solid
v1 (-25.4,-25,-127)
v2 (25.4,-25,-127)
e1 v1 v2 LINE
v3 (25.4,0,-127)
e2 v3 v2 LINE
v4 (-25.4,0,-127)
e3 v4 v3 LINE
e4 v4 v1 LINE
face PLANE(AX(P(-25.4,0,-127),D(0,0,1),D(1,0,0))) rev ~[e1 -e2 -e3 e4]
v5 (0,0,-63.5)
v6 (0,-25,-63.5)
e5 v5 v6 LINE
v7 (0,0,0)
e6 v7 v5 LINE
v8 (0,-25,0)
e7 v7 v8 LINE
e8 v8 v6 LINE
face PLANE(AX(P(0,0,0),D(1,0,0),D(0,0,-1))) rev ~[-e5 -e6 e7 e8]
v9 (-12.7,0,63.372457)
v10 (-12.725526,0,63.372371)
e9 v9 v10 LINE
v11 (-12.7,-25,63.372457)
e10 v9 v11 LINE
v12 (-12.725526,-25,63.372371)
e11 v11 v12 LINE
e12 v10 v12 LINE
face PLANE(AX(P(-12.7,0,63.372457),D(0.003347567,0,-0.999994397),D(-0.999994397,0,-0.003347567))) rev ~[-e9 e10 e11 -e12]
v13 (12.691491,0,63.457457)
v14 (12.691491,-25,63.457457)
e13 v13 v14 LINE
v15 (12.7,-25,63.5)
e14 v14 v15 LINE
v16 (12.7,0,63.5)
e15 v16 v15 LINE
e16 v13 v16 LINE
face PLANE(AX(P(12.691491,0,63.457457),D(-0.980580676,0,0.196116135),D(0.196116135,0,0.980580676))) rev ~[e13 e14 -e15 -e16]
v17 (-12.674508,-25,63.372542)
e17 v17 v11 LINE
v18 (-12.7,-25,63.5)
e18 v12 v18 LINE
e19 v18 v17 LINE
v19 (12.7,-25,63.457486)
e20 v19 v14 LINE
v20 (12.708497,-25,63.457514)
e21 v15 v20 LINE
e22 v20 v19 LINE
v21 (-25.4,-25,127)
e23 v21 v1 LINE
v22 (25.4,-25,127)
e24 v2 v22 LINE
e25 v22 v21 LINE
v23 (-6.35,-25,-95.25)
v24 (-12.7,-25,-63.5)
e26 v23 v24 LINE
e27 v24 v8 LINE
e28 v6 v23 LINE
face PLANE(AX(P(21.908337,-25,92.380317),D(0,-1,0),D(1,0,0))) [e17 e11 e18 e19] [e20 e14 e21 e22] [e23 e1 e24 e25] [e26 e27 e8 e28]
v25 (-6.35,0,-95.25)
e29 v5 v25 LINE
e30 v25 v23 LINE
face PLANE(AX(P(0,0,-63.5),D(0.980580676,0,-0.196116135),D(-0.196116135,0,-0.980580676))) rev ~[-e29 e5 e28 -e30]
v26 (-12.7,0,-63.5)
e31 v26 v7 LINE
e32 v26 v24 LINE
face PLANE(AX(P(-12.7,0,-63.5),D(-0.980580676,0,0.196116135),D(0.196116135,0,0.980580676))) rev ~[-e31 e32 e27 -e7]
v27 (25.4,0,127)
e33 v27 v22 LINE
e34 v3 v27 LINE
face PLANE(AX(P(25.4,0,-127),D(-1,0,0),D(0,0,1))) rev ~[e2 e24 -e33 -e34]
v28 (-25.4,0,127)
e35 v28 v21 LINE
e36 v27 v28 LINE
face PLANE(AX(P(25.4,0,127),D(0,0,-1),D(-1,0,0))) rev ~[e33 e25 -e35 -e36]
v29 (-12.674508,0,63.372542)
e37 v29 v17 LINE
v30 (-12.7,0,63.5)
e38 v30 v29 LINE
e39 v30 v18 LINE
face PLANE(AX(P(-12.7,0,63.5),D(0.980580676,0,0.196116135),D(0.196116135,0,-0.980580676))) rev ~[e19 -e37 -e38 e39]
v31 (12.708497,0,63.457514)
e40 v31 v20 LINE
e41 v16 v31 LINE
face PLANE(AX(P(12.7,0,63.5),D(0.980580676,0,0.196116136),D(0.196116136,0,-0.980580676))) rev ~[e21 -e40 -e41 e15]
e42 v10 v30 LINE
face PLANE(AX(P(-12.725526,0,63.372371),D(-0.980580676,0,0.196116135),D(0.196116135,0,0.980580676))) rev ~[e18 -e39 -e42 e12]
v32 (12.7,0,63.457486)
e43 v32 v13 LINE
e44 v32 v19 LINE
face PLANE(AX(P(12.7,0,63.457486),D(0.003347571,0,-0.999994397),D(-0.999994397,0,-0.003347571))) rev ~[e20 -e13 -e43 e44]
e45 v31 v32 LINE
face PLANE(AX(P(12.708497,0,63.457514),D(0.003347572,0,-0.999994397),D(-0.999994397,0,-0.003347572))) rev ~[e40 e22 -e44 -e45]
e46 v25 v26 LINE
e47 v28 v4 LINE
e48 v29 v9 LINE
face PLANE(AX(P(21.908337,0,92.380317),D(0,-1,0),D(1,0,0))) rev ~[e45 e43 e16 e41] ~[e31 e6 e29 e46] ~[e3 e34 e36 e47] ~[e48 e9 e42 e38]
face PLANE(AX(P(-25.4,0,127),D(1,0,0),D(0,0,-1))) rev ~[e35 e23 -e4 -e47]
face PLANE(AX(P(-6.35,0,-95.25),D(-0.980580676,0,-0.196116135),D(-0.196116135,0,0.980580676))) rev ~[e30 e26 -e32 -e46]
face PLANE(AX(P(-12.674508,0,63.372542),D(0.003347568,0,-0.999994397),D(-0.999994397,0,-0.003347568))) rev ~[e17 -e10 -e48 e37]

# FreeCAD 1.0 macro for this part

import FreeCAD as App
import Part
import Sketcher

V = App.Vector
Q = App.Units.Quantity

doc = App.newDocument("Part")
body = doc.addObject("PartDesign::Body", "Body")

# Sketch on XZ plane
sketch1 = body.newObject("Sketcher::SketchObject", "Sketch")
sketch1.AttachmentSupport = (doc.getObject("XZ_Plane"), [""])
sketch1.MapMode = "FlatFace"
sketch1.addGeometry(Part.LineSegment(V(-25.4, 127, 0), V(-25.4, -127, 0)), False)
sketch1.addGeometry(Part.LineSegment(V(-25.4, -127, 0), V(25.4, -127, 0)), False)
sketch1.addGeometry(Part.LineSegment(V(25.4, -127, 0), V(25.4, 127, 0)), False)
sketch1.addGeometry(Part.LineSegment(V(25.4, 127, 0), V(-25.4, 127, 0)), False)
sketch1.addGeometry(Part.LineSegment(V(-12.7, -63.5, 0), V(0, 0, 0)), False)
sketch1.addGeometry(Part.LineSegment(V(0, 0, 0), V(0, -63.5, 0)), False)
sketch1.addGeometry(Part.LineSegment(V(0, -63.5, 0), V(-6.35, -95.25, 0)), False)
sketch1.addGeometry(Part.LineSegment(V(-6.35, -95.25, 0), V(-12.7, -63.5, 0)), False)
sketch1.addGeometry(Part.LineSegment(V(-12.726, 63.372, 0), V(-12.7, 63.5, 0)), False)
sketch1.addGeometry(Part.LineSegment(V(-12.7, 63.5, 0), V(-12.675, 63.373, 0)), False)
sketch1.addGeometry(Part.LineSegment(V(-12.675, 63.373, 0), V(-12.7, 63.372, 0)), False)
sketch1.addGeometry(Part.LineSegment(V(-12.7, 63.372, 0), V(-12.726, 63.372, 0)), False)
sketch1.addGeometry(Part.LineSegment(V(12.7, 63.457, 0), V(12.691, 63.457, 0)), False)
sketch1.addGeometry(Part.LineSegment(V(12.691, 63.457, 0), V(12.7, 63.5, 0)), False)
sketch1.addGeometry(Part.LineSegment(V(12.7, 63.5, 0), V(12.708, 63.458, 0)), False)
sketch1.addGeometry(Part.LineSegment(V(12.708, 63.458, 0), V(12.7, 63.457, 0)), False)
sketch1.addConstraint(Sketcher.Constraint("Coincident", 0, 2, 1, 1))
sketch1.addConstraint(Sketcher.Constraint("Coincident", 1, 2, 2, 1))
sketch1.addConstraint(Sketcher.Constraint("Coincident", 2, 2, 3, 1))
sketch1.addConstraint(Sketcher.Constraint("Coincident", 3, 2, 0, 1))
sketch1.addConstraint(Sketcher.Constraint("Coincident", 4, 2, 5, 1))
sketch1.addConstraint(Sketcher.Constraint("Coincident", 5, 2, 6, 1))
sketch1.addConstraint(Sketcher.Constraint("Coincident", 6, 2, 7, 1))
sketch1.addConstraint(Sketcher.Constraint("Coincident", 7, 2, 4, 1))
sketch1.addConstraint(Sketcher.Constraint("Coincident", 8, 2, 9, 1))
sketch1.addConstraint(Sketcher.Constraint("Coincident", 9, 2, 10, 1))
sketch1.addConstraint(Sketcher.Constraint("Coincident", 10, 2, 11, 1))
sketch1.addConstraint(Sketcher.Constraint("Coincident", 11, 2, 8, 1))
sketch1.addConstraint(Sketcher.Constraint("Coincident", 12, 2, 13, 1))
sketch1.addConstraint(Sketcher.Constraint("Coincident", 13, 2, 14, 1))
sketch1.addConstraint(Sketcher.Constraint("Coincident", 14, 2, 15, 1))
sketch1.addConstraint(Sketcher.Constraint("Coincident", 15, 2, 12, 1))
sketch1.addConstraint(Sketcher.Constraint("Vertical", 0))
sketch1.addConstraint(Sketcher.Constraint("Horizontal", 1))
sketch1.addConstraint(Sketcher.Constraint("Vertical", 2))
sketch1.addConstraint(Sketcher.Constraint("Horizontal", 3))
sketch1.addConstraint(Sketcher.Constraint("Vertical", 5))
sketch1.addConstraint(Sketcher.Constraint("Coincident", 4, 2, -1, 1))
sketch1.addConstraint(Sketcher.Constraint("Symmetric", 0, 2, 2, 2, -1, 1))
sketch1.addConstraint(Sketcher.Constraint("Symmetric", 7, 2, 13, 2, -1, 1))
sketch1.addConstraint(Sketcher.Constraint("Symmetric", 8, 2, 13, 2, -2))
sketch1.addConstraint(Sketcher.Constraint("Parallel", 4, 6))
sketch1.addConstraint(Sketcher.Constraint("Parallel", 6, 8))
sketch1.addConstraint(Sketcher.Constraint("Parallel", 7, 9))
sketch1.addConstraint(Sketcher.Constraint("Parallel", 10, 11))
sketch1.addConstraint(Sketcher.Constraint("Parallel", 11, 12))
sketch1.addConstraint(Sketcher.Constraint("Parallel", 8, 13))
sketch1.addConstraint(Sketcher.Constraint("Parallel", 9, 14))
sketch1.addConstraint(Sketcher.Constraint("Parallel", 12, 15))
sketch1.addConstraint(Sketcher.Constraint("Horizontal", 5, 2, 7, 2))
sketch1.addConstraint(Sketcher.Constraint("Vertical", 8, 2, 10, 2))
sketch1.addConstraint(Sketcher.Constraint("Vertical", 13, 2, 15, 2))
sketch1.addConstraint(Sketcher.Constraint("Equal", 6, 7))
sketch1.addConstraint(Sketcher.Constraint("DistanceX", 1, 1, 1, 2, Q("2 in")))
sketch1.addConstraint(Sketcher.Constraint("DistanceY", 0, 2, 0, 1, Q("10 in")))
sketch1.addConstraint(Sketcher.Constraint("DistanceY", 5, 2, 5, 1, Q("2.5 in")))
sketch1.addConstraint(Sketcher.Constraint("DistanceX", 8, 2, 13, 2, Q("1 in")))
sketch1.addConstraint(Sketcher.Constraint("DistanceX", 9, 2, 12, 2, Q("25.366 mm")))
sketch1.addConstraint(Sketcher.Constraint("DistanceY", 10, 2, 12, 2, Q("0.085 mm")))
sketch1.addConstraint(Sketcher.Constraint("Distance", 9, Q("0.129982 mm")))
pad1 = body.newObject("PartDesign::Pad", "Pad")
pad1.Profile = sketch1
pad1.Length = 25

# Sketch on XZ plane
sketch2 = body.newObject("Sketcher::SketchObject", "Sketch001")
sketch2.AttachmentSupport = (doc.getObject("XZ_Plane"), [""])
sketch2.MapMode = "FlatFace"
sketch2.addGeometry(Part.LineSegment(V(25.4, 0, 0), V(12.708, 63.458, 0)), False)
sketch2.addGeometry(Part.LineSegment(V(12.708, 63.458, 0), V(12.7, 63.457, 0)), False)
sketch2.addGeometry(Part.LineSegment(V(12.7, 63.457, 0), V(12.691, 63.457, 0)), False)
sketch2.addGeometry(Part.LineSegment(V(12.691, 63.457, 0), V(0, 0, 0)), False)
sketch2.addGeometry(Part.LineSegment(V(0, 0, 0), V(12.7, -63.5, 0)), False)
sketch2.addGeometry(Part.LineSegment(V(12.7, -63.5, 0), V(25.4, 0, 0)), False)
sketch2.addGeometry(Part.LineSegment(V(-12.7, -63.5, 0), V(0, 0, 0)), False)
sketch2.addGeometry(Part.LineSegment(V(0, 0, 0), V(-12.675, 63.373, 0)), False)
sketch2.addGeometry(Part.LineSegment(V(-12.675, 63.373, 0), V(-12.7, 63.372, 0)), False)
sketch2.addGeometry(Part.LineSegment(V(-12.7, 63.372, 0), V(-12.726, 63.372, 0)), False)
sketch2.addGeometry(Part.LineSegment(V(-12.726, 63.372, 0), V(-25.4, 0, 0)), False)
sketch2.addGeometry(Part.LineSegment(V(-25.4, 0, 0), V(-12.7, -63.5, 0)), False)
sketch2.addConstraint(Sketcher.Constraint("Coincident", 0, 2, 1, 1))
sketch2.addConstraint(Sketcher.Constraint("Coincident", 1, 2, 2, 1))
sketch2.addConstraint(Sketcher.Constraint("Coincident", 2, 2, 3, 1))
sketch2.addConstraint(Sketcher.Constraint("Coincident", 3, 2, 4, 1))
sketch2.addConstraint(Sketcher.Constraint("Coincident", 4, 2, 5, 1))
sketch2.addConstraint(Sketcher.Constraint("Coincident", 5, 2, 0, 1))
sketch2.addConstraint(Sketcher.Constraint("Coincident", 6, 2, 7, 1))
sketch2.addConstraint(Sketcher.Constraint("Coincident", 7, 2, 8, 1))
sketch2.addConstraint(Sketcher.Constraint("Coincident", 8, 2, 9, 1))
sketch2.addConstraint(Sketcher.Constraint("Coincident", 9, 2, 10, 1))
sketch2.addConstraint(Sketcher.Constraint("Coincident", 10, 2, 11, 1))
sketch2.addConstraint(Sketcher.Constraint("Coincident", 11, 2, 6, 1))
sketch2.addConstraint(Sketcher.Constraint("Coincident", 3, 2, -1, 1))
sketch2.addConstraint(Sketcher.Constraint("Coincident", 6, 2, -1, 1))
sketch2.addConstraint(Sketcher.Constraint("Symmetric", 5, 2, 10, 2, -1, 1))
sketch2.addConstraint(Sketcher.Constraint("Symmetric", 4, 2, 11, 2, -2))
sketch2.addConstraint(Sketcher.Constraint("PointOnObject", 5, 2, -1))
sketch2.addConstraint(Sketcher.Constraint("Parallel", 1, 2))
sketch2.addConstraint(Sketcher.Constraint("Parallel", 0, 4))
sketch2.addConstraint(Sketcher.Constraint("Parallel", 3, 5))
sketch2.addConstraint(Sketcher.Constraint("Parallel", 5, 6))
sketch2.addConstraint(Sketcher.Constraint("Parallel", 4, 7))
sketch2.addConstraint(Sketcher.Constraint("Parallel", 2, 8))
sketch2.addConstraint(Sketcher.Constraint("Parallel", 8, 9))
sketch2.addConstraint(Sketcher.Constraint("Parallel", 6, 10))
sketch2.addConstraint(Sketcher.Constraint("Vertical", 1, 2, 4, 2))
sketch2.addConstraint(Sketcher.Constraint("Vertical", 8, 2, 11, 2))
sketch2.addConstraint(Sketcher.Constraint("DistanceX", -1, 1, 5, 2, Q("1 in")))
sketch2.addConstraint(Sketcher.Constraint("DistanceY", 4, 2, -1, 1, Q("2.5 in")))
sketch2.addConstraint(Sketcher.Constraint("DistanceX", 7, 2, 2, 2, Q("25.366 mm")))
sketch2.addConstraint(Sketcher.Constraint("DistanceY", 8, 2, 2, 2, Q("0.085 mm")))
sketch2.addConstraint(Sketcher.Constraint("Distance", 0, Q("64.714221 mm")))
pocket1 = body.newObject("PartDesign::Pocket", "Pocket")
pocket1.Profile = sketch2
pocket1.Length = 151.734784

doc.recompute()
